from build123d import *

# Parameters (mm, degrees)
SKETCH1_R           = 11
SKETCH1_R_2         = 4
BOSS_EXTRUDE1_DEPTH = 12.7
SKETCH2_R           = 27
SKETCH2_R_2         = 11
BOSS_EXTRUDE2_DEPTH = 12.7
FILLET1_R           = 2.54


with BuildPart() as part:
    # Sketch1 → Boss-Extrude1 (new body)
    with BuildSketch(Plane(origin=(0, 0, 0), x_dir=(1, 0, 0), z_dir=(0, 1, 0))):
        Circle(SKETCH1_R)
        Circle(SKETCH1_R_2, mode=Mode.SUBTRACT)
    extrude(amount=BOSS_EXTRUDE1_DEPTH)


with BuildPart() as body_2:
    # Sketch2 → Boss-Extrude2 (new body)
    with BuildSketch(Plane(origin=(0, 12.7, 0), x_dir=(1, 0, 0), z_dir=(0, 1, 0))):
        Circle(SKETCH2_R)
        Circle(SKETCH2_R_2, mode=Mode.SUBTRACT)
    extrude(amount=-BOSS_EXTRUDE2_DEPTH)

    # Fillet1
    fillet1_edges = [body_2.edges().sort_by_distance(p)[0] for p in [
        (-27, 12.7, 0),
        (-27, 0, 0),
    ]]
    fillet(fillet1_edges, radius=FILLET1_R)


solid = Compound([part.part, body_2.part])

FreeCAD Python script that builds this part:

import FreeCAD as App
import Part
import Sketcher
from FreeCAD import Vector


def edges_at(feature, points):
    """Names of the edges that pass closest to the given points."""
    edges = feature.Shape.Edges
    near = lambda p: min(range(len(edges)), key=lambda i: edges[i].distToShape(Part.Vertex(*p))[0])
    return sorted({f"Edge{near(p) + 1}" for p in points})

doc = App.newDocument("Part")
body = doc.addObject("PartDesign::Body", "Body")

# Sketch on XZ plane
sketch1 = body.newObject("Sketcher::SketchObject", "Sketch")
sketch1.AttachmentSupport = (doc.getObject("XZ_Plane"), [""])
sketch1.MapMode = "FlatFace"
sketch1.addGeometry(Part.Circle(Vector(0, 0, 0), Vector(0, 0, 1), 11), False)
sketch1.addGeometry(Part.Circle(Vector(0, 0, 0), Vector(0, 0, 1), 4), False)
sketch1.addConstraint(Sketcher.Constraint("Coincident", 0, 3, -1, 1))
sketch1.addConstraint(Sketcher.Constraint("Coincident", 1, 3, -1, 1))
sketch1.addConstraint(Sketcher.Constraint("Diameter", 0, 22.0))
sketch1.addConstraint(Sketcher.Constraint("Diameter", 1, 8.0))
pad1 = body.newObject("PartDesign::Pad", "Pad")
pad1.Profile = sketch1
pad1.Length = 12.7
pad1.Reversed = True
body2 = doc.addObject("PartDesign::Body", "Body001")

# Sketch on XZ plane
sketch2 = body2.newObject("Sketcher::SketchObject", "Sketch001")
sketch2.AttachmentSupport = (doc.getObject("XZ_Plane001"), [""])
sketch2.MapMode = "FlatFace"
sketch2.AttachmentOffset = App.Placement(Vector(0, 0, -12.7), App.Rotation())
sketch2.addGeometry(Part.Circle(Vector(0, 0, 0), Vector(0, 0, 1), 27), False)
sketch2.addGeometry(Part.Circle(Vector(0, 0, 0), Vector(0, 0, 1), 11), False)
sketch2.addConstraint(Sketcher.Constraint("Coincident", 0, 3, -1, 1))
sketch2.addConstraint(Sketcher.Constraint("Coincident", 1, 3, -1, 1))
sketch2.addConstraint(Sketcher.Constraint("Diameter", 0, 54.0))
sketch2.addConstraint(Sketcher.Constraint("Diameter", 1, 22.0))
pad2 = body2.newObject("PartDesign::Pad", "Pad001")
pad2.Profile = sketch2
pad2.Length = 12.7
doc.recompute()

fillet = body2.newObject("PartDesign::Fillet", "Fillet")
fillet.Base = (pad2, edges_at(pad2, [(-27, 12.7, 0), (-27, 0, 0)]))
fillet.Radius = 2.54

doc.recompute()
